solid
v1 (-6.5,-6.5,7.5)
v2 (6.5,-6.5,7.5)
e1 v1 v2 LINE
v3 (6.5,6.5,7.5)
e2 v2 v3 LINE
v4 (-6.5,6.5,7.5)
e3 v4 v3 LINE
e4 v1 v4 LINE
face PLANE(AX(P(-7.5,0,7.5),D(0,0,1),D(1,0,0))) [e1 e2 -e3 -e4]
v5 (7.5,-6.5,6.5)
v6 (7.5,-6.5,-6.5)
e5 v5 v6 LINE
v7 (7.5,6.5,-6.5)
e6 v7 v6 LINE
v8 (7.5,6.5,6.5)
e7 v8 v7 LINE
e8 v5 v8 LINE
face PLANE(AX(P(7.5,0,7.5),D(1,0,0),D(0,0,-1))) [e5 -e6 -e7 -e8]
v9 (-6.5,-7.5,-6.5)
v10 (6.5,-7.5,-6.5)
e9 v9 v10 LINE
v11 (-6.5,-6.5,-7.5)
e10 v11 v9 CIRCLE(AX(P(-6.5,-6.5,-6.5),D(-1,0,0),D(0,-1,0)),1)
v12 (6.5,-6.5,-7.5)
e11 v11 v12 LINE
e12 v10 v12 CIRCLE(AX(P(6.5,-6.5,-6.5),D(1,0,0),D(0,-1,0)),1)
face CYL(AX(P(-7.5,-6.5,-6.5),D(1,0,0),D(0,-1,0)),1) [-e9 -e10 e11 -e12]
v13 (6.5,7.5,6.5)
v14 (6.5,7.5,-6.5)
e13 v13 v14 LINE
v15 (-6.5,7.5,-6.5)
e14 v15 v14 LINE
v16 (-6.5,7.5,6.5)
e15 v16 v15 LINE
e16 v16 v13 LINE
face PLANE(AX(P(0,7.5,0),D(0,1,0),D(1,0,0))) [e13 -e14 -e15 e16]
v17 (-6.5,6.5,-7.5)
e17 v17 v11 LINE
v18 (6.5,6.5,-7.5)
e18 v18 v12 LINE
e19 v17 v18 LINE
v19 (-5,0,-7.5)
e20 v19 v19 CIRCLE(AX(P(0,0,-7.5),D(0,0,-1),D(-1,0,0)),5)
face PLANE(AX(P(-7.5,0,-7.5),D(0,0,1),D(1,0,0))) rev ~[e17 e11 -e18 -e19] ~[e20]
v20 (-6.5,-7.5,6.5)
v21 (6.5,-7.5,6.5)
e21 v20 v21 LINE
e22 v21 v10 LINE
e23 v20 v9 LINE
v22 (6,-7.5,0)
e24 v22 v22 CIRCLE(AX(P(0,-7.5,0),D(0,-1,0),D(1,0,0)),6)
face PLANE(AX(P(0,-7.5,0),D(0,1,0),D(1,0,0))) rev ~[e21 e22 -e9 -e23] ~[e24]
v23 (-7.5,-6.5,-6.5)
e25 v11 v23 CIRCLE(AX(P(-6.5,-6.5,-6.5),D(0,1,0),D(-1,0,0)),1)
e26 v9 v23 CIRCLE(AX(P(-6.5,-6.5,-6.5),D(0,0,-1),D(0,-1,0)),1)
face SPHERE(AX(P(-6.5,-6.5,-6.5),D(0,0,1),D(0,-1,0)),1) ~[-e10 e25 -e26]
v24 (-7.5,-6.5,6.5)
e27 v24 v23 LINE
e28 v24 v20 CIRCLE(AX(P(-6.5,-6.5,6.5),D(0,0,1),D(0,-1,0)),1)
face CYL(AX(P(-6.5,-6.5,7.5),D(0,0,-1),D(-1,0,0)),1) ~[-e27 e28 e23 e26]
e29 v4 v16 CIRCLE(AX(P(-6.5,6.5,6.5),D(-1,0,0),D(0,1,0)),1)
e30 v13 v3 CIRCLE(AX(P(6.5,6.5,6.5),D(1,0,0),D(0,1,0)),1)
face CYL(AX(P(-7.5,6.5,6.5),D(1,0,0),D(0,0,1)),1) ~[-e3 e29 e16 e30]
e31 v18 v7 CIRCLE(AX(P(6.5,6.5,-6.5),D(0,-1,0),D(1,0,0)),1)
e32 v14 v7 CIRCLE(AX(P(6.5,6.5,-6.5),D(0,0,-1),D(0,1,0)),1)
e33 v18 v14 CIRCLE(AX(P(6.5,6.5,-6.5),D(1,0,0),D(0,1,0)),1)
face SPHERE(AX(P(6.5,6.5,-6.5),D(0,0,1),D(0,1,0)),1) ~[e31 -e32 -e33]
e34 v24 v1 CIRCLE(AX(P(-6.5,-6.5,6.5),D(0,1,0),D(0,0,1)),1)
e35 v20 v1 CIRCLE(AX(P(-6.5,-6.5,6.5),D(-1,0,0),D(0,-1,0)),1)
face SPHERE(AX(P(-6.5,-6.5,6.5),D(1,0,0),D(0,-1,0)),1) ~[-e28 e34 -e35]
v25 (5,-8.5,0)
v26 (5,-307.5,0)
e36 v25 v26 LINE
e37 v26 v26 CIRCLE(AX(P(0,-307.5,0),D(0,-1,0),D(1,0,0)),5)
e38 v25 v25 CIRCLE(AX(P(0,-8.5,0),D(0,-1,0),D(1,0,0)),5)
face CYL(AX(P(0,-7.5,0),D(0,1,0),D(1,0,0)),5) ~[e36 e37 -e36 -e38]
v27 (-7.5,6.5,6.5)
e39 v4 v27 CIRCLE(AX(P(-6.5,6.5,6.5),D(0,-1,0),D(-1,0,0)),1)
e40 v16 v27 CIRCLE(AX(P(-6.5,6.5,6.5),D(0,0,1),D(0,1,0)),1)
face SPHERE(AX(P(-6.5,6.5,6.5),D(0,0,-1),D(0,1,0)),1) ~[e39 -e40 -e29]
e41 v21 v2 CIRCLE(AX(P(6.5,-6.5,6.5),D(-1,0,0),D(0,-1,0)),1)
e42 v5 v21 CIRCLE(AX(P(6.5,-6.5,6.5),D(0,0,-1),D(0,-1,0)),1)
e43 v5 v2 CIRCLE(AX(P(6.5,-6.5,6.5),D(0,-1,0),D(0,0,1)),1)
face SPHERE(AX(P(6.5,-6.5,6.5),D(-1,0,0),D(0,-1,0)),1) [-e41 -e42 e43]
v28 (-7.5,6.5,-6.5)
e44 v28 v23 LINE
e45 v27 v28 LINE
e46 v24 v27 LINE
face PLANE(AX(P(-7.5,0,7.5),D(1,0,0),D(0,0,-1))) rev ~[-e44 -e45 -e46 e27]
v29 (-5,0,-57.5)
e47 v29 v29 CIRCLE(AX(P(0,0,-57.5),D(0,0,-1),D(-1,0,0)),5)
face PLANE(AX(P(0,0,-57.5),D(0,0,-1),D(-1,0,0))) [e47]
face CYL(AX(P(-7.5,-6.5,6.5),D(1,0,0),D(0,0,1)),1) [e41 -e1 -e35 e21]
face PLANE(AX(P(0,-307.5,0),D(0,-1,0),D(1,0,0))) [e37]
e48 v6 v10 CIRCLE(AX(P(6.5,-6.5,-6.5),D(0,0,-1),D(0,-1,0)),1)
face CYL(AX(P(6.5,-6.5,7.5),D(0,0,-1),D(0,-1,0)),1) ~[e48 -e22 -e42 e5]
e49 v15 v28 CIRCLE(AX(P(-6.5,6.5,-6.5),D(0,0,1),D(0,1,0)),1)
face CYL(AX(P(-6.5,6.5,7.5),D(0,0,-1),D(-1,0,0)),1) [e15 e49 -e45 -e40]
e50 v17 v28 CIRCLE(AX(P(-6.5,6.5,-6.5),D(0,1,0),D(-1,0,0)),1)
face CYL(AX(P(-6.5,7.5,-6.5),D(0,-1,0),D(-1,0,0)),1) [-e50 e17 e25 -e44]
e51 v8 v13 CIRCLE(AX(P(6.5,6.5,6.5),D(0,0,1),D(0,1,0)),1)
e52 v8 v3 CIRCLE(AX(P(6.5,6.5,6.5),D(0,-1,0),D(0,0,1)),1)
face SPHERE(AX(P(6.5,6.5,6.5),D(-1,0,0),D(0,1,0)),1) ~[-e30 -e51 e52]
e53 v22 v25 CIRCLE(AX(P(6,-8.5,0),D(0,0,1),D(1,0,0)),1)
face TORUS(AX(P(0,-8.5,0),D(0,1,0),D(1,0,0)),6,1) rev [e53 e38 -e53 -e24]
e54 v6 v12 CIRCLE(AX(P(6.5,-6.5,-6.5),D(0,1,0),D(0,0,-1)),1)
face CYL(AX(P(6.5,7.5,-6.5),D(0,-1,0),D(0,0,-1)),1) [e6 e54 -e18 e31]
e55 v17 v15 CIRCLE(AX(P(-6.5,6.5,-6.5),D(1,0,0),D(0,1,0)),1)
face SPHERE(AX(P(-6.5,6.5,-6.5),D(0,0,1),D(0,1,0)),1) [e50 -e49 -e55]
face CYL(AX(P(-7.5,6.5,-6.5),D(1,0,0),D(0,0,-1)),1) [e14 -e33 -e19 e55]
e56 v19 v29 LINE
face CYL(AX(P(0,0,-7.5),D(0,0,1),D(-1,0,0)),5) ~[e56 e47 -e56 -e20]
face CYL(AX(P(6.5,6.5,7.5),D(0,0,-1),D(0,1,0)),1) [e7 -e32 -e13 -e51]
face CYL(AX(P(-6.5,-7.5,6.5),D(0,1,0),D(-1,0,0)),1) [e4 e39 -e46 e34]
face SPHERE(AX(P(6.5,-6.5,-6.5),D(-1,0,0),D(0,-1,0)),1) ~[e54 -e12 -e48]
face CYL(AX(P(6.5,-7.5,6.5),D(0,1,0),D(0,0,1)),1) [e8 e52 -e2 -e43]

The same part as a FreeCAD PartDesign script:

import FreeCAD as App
import Part
import Sketcher
Q = App.Units.Quantity


def edges_at(feature, points):
    """Names of the edges that pass closest to the given points."""
    edges = feature.Shape.Edges
    near = lambda p: min(range(len(edges)), key=lambda i: edges[i].distToShape(Part.Vertex(*p))[0])
    return sorted({f"Edge{near(p) + 1}" for p in points})


def add_polygon(sketch, points):
    """Adds a closed chain of lines whose ends are joined by coincident constraints."""
    first, n = sketch.GeometryCount, len(points)
    for a, b in zip(points, points[1:] + points[:1]):
        sketch.addGeometry(Part.LineSegment(App.Vector(*a, 0), App.Vector(*b, 0)), False)
    for i in range(n):
        sketch.addConstraint(Sketcher.Constraint("Coincident", first + i, 2, first + (i + 1) % n, 1))

doc = App.newDocument("Part")
body = doc.addObject("PartDesign::Body", "Body")

# Sketch on XZ plane
sketch1 = doc.addObject("Sketcher::SketchObject", "Sketch")
body.addObject(sketch1)
sketch1.AttachmentSupport = (doc.XZ_Plane, [""])
sketch1.MapMode = "FlatFace"
add_polygon(sketch1, [(-8, -8), (-8, 8), (8, 8), (8, -8)])  # lines 0-3
sketch1.addConstraint([
    Sketcher.Constraint("Vertical", 0),
    Sketcher.Constraint("Horizontal", 1),
    Sketcher.Constraint("Vertical", 2),
    Sketcher.Constraint("Horizontal", 3),
    Sketcher.Constraint("Symmetric", 0, 2, 2, 2, -1, 1),
    Sketcher.Constraint("Equal", 3, 0),
    Sketcher.Constraint("DistanceX", 1, 1, 1, 2, Q("15 mm")),
])
pad1 = doc.addObject("PartDesign::Pad", "Pad")
body.addObject(pad1)
pad1.Profile = sketch1
pad1.Length = 15
pad1.Midplane = True

# Sketch on XY plane
sketch2 = doc.addObject("Sketcher::SketchObject", "Sketch001")
body.addObject(sketch2)
sketch2.AttachmentSupport = (doc.XY_Plane, [""])
sketch2.MapMode = "FlatFace"
sketch2.AttachmentOffset = App.Placement(App.Vector(0, 0, -7.5), App.Rotation())
sketch2.addGeometry(Part.Circle(App.Vector(0, 0, 0), App.Vector(0, 0, 1), 5), False)
sketch2.addConstraint([
    Sketcher.Constraint("Coincident", 0, 3, -1, 1),
    Sketcher.Constraint("Diameter", 0, Q("10 mm")),
])
pad2 = doc.addObject("PartDesign::Pad", "Pad001")
body.addObject(pad2)
pad2.Profile = sketch2
pad2.Length = 50
pad2.Reversed = True

# Sketch on XZ plane
sketch3 = doc.addObject("Sketcher::SketchObject", "Sketch002")
body.addObject(sketch3)
sketch3.AttachmentSupport = (doc.XZ_Plane, [""])
sketch3.MapMode = "FlatFace"
sketch3.AttachmentOffset = App.Placement(App.Vector(0, 0, 7.5), App.Rotation())
sketch3.addGeometry(Part.Circle(App.Vector(0, 0, 0), App.Vector(0, 0, 1), 5), False)
sketch3.addConstraint([
    Sketcher.Constraint("Coincident", 0, 3, -1, 1),
    Sketcher.Constraint("Diameter", 0, Q("10 mm")),
])
pad3 = doc.addObject("PartDesign::Pad", "Pad002")
body.addObject(pad3)
pad3.Profile = sketch3
pad3.Length = 300
doc.recompute()

fillet = doc.addObject("PartDesign::Fillet", "Fillet")
body.addObject(fillet)
fillet.Base = (pad3, edges_at(pad3, [
    (-7.5, 7.5, 0),
    (0, 7.5, 7.5),
    (-5, -7.5, 0),
    (7.5, 7.5, 0),
    (0, -7.5, 7.5),
    (-7.5, -7.5, 0),
    (0, -7.5, -7.5),
    (7.5, -7.5, 0),
    (0, 7.5, -7.5),
    (7.5, 0, 7.5),
    (-7.5, 0, 7.5),
    (-7.5, 0, -7.5),
    (7.5, 0, -7.5),
]))
fillet.Radius = 1

doc.recompute()
